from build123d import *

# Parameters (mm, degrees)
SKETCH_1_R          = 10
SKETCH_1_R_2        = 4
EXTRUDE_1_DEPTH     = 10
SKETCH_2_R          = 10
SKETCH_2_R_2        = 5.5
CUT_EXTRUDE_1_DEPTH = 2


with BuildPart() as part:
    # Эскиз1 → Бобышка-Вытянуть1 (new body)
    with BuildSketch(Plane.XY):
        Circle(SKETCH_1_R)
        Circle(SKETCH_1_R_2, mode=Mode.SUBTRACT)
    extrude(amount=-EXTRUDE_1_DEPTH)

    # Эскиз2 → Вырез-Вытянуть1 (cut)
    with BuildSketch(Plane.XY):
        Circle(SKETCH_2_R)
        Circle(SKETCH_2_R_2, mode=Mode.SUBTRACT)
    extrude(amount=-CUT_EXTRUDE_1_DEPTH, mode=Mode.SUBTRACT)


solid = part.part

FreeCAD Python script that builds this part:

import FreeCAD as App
import Part
import Sketcher
Q = App.Units.Quantity

doc = App.newDocument("Part")
params = doc.addObject("Spreadsheet::Sheet", "Params")
for row, (alias, value) in enumerate([
    ("sketch1_diameter", "20 mm"),
    ("sketch1_diameter2", "8 mm"),
    ("pad1_length", "10 mm"),
    ("sketch2_diameter", "20 mm"),
    ("sketch2_diameter2", "11 mm"),
    ("pocket1_length", "2 mm"),
], start=1):
    params.set(f"A{row}", alias)
    params.set(f"B{row}", "=" + value)
    params.setAlias(f"B{row}", alias)

body = doc.addObject("PartDesign::Body", "Body")

# Sketch on XY plane
sketch1 = doc.addObject("Sketcher::SketchObject", "Sketch")
body.addObject(sketch1)
sketch1.AttachmentSupport = (doc.XY_Plane, [""])
sketch1.MapMode = "FlatFace"
sketch1.addGeometry([
    Part.Circle(App.Vector(0, 0, 0), App.Vector(0, 0, 1), 10),
    Part.Circle(App.Vector(0, 0, 0), App.Vector(0, 0, 1), 4),
], False)
sketch1.addConstraint([
    Sketcher.Constraint("Coincident", 0, 3, -1, 1),
    Sketcher.Constraint("Coincident", 1, 3, -1, 1),
    Sketcher.Constraint("Diameter", 0, Q("20 mm")),
    Sketcher.Constraint("Diameter", 1, Q("8 mm")),
])
sketch1.setExpression("Constraints[2]", "Params.sketch1_diameter")
sketch1.setExpression("Constraints[3]", "Params.sketch1_diameter2")
pad1 = doc.addObject("PartDesign::Pad", "Pad")
body.addObject(pad1)
pad1.Profile = sketch1
pad1.setExpression("Length", "Params.pad1_length")
pad1.Reversed = True

# Sketch on XY plane
sketch2 = doc.addObject("Sketcher::SketchObject", "Sketch001")
body.addObject(sketch2)
sketch2.AttachmentSupport = (doc.XY_Plane, [""])
sketch2.MapMode = "FlatFace"
sketch2.addGeometry([
    Part.Circle(App.Vector(0, 0, 0), App.Vector(0, 0, 1), 10),
    Part.Circle(App.Vector(0, 0, 0), App.Vector(0, 0, 1), 5.5),
], False)
sketch2.addConstraint([
    Sketcher.Constraint("Coincident", 0, 3, -1, 1),
    Sketcher.Constraint("Coincident", 1, 3, -1, 1),
    Sketcher.Constraint("Diameter", 0, Q("20 mm")),
    Sketcher.Constraint("Diameter", 1, Q("11 mm")),
])
sketch2.setExpression("Constraints[2]", "Params.sketch2_diameter")
sketch2.setExpression("Constraints[3]", "Params.sketch2_diameter2")
pocket1 = doc.addObject("PartDesign::Pocket", "Pocket")
body.addObject(pocket1)
pocket1.Profile = sketch2
pocket1.setExpression("Length", "Params.pocket1_length")

doc.recompute()
